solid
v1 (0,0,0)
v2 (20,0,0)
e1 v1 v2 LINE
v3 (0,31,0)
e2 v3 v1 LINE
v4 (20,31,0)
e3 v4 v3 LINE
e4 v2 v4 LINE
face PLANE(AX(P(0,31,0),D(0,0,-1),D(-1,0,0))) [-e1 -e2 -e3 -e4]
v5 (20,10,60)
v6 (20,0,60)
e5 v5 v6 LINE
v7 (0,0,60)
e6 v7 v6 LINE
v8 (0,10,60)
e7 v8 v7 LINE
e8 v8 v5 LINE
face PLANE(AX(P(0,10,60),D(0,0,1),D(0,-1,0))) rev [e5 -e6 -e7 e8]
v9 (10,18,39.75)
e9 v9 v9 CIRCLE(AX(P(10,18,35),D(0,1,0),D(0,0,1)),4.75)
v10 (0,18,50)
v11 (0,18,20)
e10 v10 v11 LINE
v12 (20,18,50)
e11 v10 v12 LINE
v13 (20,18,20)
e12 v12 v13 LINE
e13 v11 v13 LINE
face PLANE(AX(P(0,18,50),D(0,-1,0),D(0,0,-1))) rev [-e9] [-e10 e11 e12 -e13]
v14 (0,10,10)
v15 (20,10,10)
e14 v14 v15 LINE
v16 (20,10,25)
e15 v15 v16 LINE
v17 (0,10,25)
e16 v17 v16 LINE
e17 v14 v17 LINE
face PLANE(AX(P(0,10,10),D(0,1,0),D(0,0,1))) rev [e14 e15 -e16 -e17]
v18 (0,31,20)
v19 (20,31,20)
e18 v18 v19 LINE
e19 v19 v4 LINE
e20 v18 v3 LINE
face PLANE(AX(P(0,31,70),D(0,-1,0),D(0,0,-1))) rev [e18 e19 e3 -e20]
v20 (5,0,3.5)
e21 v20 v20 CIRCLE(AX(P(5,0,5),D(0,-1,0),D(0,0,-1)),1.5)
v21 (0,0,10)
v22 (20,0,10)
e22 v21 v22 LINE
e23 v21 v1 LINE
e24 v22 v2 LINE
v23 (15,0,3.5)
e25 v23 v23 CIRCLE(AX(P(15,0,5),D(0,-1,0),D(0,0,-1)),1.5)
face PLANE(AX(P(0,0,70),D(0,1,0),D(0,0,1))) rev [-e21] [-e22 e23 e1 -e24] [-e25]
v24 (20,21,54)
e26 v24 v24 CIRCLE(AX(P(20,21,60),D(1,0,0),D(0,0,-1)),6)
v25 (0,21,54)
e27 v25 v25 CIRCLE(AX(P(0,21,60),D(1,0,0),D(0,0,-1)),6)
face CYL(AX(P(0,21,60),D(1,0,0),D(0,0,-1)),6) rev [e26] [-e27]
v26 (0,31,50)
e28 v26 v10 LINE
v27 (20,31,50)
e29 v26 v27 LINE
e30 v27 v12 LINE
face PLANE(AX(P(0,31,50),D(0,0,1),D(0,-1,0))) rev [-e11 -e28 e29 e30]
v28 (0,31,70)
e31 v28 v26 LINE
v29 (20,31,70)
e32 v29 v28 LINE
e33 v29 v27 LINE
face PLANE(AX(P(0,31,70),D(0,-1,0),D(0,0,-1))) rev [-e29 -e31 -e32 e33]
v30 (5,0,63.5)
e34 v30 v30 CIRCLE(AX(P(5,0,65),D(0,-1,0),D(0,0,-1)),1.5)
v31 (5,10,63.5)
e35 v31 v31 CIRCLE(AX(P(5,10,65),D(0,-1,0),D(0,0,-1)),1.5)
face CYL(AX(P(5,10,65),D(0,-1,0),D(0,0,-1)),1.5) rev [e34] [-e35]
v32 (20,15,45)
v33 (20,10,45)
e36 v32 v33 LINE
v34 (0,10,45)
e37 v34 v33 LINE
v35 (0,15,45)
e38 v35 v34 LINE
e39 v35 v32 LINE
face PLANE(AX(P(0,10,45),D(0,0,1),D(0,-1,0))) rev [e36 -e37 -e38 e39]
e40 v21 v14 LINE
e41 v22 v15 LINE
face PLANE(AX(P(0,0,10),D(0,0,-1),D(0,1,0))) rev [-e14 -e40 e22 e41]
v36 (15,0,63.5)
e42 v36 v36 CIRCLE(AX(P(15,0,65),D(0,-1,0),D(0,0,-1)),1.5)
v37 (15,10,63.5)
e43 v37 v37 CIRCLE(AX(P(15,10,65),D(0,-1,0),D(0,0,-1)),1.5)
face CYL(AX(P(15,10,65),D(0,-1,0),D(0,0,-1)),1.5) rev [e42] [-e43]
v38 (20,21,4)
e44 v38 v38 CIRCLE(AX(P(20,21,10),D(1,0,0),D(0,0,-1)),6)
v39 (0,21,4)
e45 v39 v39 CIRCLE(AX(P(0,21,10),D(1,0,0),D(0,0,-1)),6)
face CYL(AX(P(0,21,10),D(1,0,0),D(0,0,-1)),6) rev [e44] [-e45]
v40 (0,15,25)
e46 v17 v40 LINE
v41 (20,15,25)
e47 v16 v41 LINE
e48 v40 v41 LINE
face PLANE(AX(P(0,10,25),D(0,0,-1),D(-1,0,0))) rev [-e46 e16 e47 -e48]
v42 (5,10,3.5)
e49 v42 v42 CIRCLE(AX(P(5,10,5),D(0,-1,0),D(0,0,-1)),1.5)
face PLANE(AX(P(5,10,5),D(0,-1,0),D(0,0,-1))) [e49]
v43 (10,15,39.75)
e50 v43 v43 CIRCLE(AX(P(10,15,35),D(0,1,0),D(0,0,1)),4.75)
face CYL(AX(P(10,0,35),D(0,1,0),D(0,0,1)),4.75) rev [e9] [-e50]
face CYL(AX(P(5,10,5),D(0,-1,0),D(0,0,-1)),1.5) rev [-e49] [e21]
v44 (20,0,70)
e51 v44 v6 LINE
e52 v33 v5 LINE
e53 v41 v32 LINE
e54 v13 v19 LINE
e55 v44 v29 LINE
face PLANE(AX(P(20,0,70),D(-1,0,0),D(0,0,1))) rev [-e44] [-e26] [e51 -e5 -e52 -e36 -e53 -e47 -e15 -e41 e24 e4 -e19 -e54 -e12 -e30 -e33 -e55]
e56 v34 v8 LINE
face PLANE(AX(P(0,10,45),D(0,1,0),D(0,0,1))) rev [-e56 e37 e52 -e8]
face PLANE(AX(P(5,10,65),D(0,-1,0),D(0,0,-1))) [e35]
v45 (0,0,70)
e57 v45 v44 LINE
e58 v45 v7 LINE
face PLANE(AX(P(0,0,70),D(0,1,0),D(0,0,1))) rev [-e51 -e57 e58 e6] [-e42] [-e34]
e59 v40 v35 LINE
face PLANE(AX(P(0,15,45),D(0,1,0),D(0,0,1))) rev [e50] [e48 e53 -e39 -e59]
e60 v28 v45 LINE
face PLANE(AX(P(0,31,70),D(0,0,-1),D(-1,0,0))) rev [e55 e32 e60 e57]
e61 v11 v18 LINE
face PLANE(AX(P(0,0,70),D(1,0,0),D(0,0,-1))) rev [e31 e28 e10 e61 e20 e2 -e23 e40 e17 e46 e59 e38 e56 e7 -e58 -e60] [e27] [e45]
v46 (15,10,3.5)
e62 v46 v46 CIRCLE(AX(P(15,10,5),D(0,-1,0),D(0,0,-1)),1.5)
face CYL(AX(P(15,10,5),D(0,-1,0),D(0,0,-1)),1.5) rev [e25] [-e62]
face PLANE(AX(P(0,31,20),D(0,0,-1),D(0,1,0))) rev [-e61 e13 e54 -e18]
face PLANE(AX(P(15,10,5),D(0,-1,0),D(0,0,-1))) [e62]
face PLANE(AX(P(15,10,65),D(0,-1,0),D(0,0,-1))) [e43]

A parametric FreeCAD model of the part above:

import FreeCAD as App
import Part
import Sketcher

V = App.Vector


def add_polygon(sketch, points):
    """Adds a closed chain of lines whose ends are joined by coincident constraints."""
    first, n = sketch.GeometryCount, len(points)
    for a, b in zip(points, points[1:] + points[:1]):
        sketch.addGeometry(Part.LineSegment(App.Vector(*a, 0), App.Vector(*b, 0)), False)
    for i in range(n):
        sketch.addConstraint(Sketcher.Constraint("Coincident", first + i, 2, first + (i + 1) % n, 1))

doc = App.newDocument("Part")
body = doc.addObject("PartDesign::Body", "Body")

# Sketch on XY plane
sketch1 = doc.addObject("Sketcher::SketchObject", "Sketch")
body.addObject(sketch1)
sketch1.AttachmentSupport = (doc.XY_Plane, [""])
sketch1.MapMode = "FlatFace"
add_polygon(sketch1, [(0, 31), (0, 0), (20, 0), (20, 31)])  # lines 0-3
sketch1.addConstraint([
    Sketcher.Constraint("Vertical", 0),
    Sketcher.Constraint("Horizontal", 1),
    Sketcher.Constraint("Vertical", 2),
    Sketcher.Constraint("Horizontal", 3),
    Sketcher.Constraint("Coincident", 0, 2, -1, 1),
    Sketcher.Constraint("DistanceX", 1, 1, 1, 2, 20.0),
    Sketcher.Constraint("DistanceY", 0, 2, 0, 1, 31.0),
])
pad1 = doc.addObject("PartDesign::Pad", "Pad")
body.addObject(pad1)
pad1.Profile = sketch1
pad1.Length = 70

# Sketch on YZ plane
sketch2 = doc.addObject("Sketcher::SketchObject", "Sketch001")
body.addObject(sketch2)
sketch2.AttachmentSupport = (doc.YZ_Plane, [""])
sketch2.MapMode = "FlatFace"
sketch2.AttachmentOffset = App.Placement(V(0, 0, 20), App.Rotation())
add_polygon(sketch2, [(31, 50), (18, 50), (18, 20), (31, 20)])  # lines 0-3
add_polygon(sketch2, [(10, 45), (10, 60), (0, 60), (0, 10), (10, 10), (10, 25), (15, 25), (15, 45)])  # lines 4-11
sketch2.addConstraint([
    Sketcher.Constraint("Horizontal", 0),
    Sketcher.Constraint("Vertical", 1),
    Sketcher.Constraint("Horizontal", 2),
    Sketcher.Constraint("Vertical", 3),
    Sketcher.Constraint("Vertical", 4),
    Sketcher.Constraint("Horizontal", 5),
    Sketcher.Constraint("Vertical", 6),
    Sketcher.Constraint("Horizontal", 7),
    Sketcher.Constraint("Vertical", 8),
    Sketcher.Constraint("Horizontal", 9),
    Sketcher.Constraint("Vertical", 10),
    Sketcher.Constraint("Horizontal", 11),
    Sketcher.Constraint("PointOnObject", 5, 2, -2),
    Sketcher.Constraint("Vertical", 4, 2, 7, 2),
    Sketcher.Constraint("Equal", 4, 8),
    Sketcher.Constraint("DistanceX", 0, 2, 0, 1, 13.0),
    Sketcher.Constraint("DistanceX", 5, 2, 5, 1, 10.0),
    Sketcher.Constraint("DistanceX", 9, 1, 9, 2, 5.0),
    Sketcher.Constraint("DistanceY", 1, 2, 1, 1, 30.0),
    Sketcher.Constraint("DistanceY", 4, 1, 4, 2, 15.0),
    Sketcher.Constraint("DistanceY", 6, 2, 6, 1, 50.0),
    Sketcher.Constraint("DistanceX", -1, 1, 0, 2, 18.0),
    Sketcher.Constraint("DistanceY", -1, 1, 0, 2, 50.0),
    Sketcher.Constraint("DistanceY", -1, 1, 4, 2, 60.0),
])
pocket1 = doc.addObject("PartDesign::Pocket", "Pocket")
body.addObject(pocket1)
pocket1.Profile = sketch2
pocket1.Type = "ThroughAll"

# Sketch on XZ plane
sketch3 = doc.addObject("Sketcher::SketchObject", "Sketch002")
body.addObject(sketch3)
sketch3.AttachmentSupport = (doc.XZ_Plane, [""])
sketch3.MapMode = "FlatFace"
sketch3.AttachmentOffset = App.Placement(V(0, 0, -18), App.Rotation())
sketch3.addGeometry(Part.Circle(V(10, 35, 0), V(0, 0, 1), 4.75), False)
sketch3.addConstraint([
    Sketcher.Constraint("Diameter", 0, 9.5),
    Sketcher.Constraint("DistanceX", -1, 1, 0, 3, 10.0),
    Sketcher.Constraint("DistanceY", -1, 1, 0, 3, 35.0),
])
pocket2 = doc.addObject("PartDesign::Pocket", "Pocket001")
body.addObject(pocket2)
pocket2.Profile = sketch3
pocket2.Type = "ThroughAll"
pocket2.Reversed = True

# Sketch on YZ plane
sketch4 = doc.addObject("Sketcher::SketchObject", "Sketch003")
body.addObject(sketch4)
sketch4.AttachmentSupport = (doc.YZ_Plane, [""])
sketch4.MapMode = "FlatFace"
sketch4.AttachmentOffset = App.Placement(V(0, 0, 20), App.Rotation())
sketch4.addGeometry([
    Part.Circle(V(21, 60, 0), V(0, 0, 1), 6),
    Part.Circle(V(21, 10, 0), V(0, 0, 1), 6),
], False)
sketch4.addConstraint([
    Sketcher.Constraint("Equal", 0, 1),
    Sketcher.Constraint("Vertical", 0, 3, 1, 3),
    Sketcher.Constraint("Diameter", 0, 12.0),
    Sketcher.Constraint("DistanceX", -1, 1, 0, 3, 21.0),
    Sketcher.Constraint("DistanceY", -1, 1, 0, 3, 60.0),
    Sketcher.Constraint("DistanceY", -1, 1, 1, 3, 10.0),
])
pocket3 = doc.addObject("PartDesign::Pocket", "Pocket002")
body.addObject(pocket3)
pocket3.Profile = sketch4
pocket3.Type = "ThroughAll"

# Sketch on XZ plane
sketch5 = doc.addObject("Sketcher::SketchObject", "Sketch004")
body.addObject(sketch5)
sketch5.AttachmentSupport = (doc.XZ_Plane, [""])
sketch5.MapMode = "FlatFace"
sketch5.addGeometry([
    Part.Circle(V(5, 65, 0), V(0, 0, 1), 1.5),
    Part.Circle(V(5, 5, 0), V(0, 0, 1), 1.5),
    Part.Circle(V(15, 65, 0), V(0, 0, 1), 1.5),
    Part.Circle(V(15, 5, 0), V(0, 0, 1), 1.5),
], False)
sketch5.addConstraint([
    Sketcher.Constraint("Equal", 0, 1),
    Sketcher.Constraint("Equal", 1, 2),
    Sketcher.Constraint("Equal", 2, 3),
    Sketcher.Constraint("Horizontal", 0, 3, 2, 3),
    Sketcher.Constraint("Horizontal", 1, 3, 3, 3),
    Sketcher.Constraint("Vertical", 0, 3, 1, 3),
    Sketcher.Constraint("Vertical", 2, 3, 3, 3),
    Sketcher.Constraint("Diameter", 0, 3.0),
    Sketcher.Constraint("DistanceX", -1, 1, 0, 3, 5.0),
    Sketcher.Constraint("DistanceY", -1, 1, 0, 3, 65.0),
    Sketcher.Constraint("DistanceY", -1, 1, 1, 3, 5.0),
    Sketcher.Constraint("DistanceX", -1, 1, 2, 3, 15.0),
])
pocket4 = doc.addObject("PartDesign::Pocket", "Pocket003")
body.addObject(pocket4)
pocket4.Profile = sketch5
pocket4.Length = 10

doc.recompute()
